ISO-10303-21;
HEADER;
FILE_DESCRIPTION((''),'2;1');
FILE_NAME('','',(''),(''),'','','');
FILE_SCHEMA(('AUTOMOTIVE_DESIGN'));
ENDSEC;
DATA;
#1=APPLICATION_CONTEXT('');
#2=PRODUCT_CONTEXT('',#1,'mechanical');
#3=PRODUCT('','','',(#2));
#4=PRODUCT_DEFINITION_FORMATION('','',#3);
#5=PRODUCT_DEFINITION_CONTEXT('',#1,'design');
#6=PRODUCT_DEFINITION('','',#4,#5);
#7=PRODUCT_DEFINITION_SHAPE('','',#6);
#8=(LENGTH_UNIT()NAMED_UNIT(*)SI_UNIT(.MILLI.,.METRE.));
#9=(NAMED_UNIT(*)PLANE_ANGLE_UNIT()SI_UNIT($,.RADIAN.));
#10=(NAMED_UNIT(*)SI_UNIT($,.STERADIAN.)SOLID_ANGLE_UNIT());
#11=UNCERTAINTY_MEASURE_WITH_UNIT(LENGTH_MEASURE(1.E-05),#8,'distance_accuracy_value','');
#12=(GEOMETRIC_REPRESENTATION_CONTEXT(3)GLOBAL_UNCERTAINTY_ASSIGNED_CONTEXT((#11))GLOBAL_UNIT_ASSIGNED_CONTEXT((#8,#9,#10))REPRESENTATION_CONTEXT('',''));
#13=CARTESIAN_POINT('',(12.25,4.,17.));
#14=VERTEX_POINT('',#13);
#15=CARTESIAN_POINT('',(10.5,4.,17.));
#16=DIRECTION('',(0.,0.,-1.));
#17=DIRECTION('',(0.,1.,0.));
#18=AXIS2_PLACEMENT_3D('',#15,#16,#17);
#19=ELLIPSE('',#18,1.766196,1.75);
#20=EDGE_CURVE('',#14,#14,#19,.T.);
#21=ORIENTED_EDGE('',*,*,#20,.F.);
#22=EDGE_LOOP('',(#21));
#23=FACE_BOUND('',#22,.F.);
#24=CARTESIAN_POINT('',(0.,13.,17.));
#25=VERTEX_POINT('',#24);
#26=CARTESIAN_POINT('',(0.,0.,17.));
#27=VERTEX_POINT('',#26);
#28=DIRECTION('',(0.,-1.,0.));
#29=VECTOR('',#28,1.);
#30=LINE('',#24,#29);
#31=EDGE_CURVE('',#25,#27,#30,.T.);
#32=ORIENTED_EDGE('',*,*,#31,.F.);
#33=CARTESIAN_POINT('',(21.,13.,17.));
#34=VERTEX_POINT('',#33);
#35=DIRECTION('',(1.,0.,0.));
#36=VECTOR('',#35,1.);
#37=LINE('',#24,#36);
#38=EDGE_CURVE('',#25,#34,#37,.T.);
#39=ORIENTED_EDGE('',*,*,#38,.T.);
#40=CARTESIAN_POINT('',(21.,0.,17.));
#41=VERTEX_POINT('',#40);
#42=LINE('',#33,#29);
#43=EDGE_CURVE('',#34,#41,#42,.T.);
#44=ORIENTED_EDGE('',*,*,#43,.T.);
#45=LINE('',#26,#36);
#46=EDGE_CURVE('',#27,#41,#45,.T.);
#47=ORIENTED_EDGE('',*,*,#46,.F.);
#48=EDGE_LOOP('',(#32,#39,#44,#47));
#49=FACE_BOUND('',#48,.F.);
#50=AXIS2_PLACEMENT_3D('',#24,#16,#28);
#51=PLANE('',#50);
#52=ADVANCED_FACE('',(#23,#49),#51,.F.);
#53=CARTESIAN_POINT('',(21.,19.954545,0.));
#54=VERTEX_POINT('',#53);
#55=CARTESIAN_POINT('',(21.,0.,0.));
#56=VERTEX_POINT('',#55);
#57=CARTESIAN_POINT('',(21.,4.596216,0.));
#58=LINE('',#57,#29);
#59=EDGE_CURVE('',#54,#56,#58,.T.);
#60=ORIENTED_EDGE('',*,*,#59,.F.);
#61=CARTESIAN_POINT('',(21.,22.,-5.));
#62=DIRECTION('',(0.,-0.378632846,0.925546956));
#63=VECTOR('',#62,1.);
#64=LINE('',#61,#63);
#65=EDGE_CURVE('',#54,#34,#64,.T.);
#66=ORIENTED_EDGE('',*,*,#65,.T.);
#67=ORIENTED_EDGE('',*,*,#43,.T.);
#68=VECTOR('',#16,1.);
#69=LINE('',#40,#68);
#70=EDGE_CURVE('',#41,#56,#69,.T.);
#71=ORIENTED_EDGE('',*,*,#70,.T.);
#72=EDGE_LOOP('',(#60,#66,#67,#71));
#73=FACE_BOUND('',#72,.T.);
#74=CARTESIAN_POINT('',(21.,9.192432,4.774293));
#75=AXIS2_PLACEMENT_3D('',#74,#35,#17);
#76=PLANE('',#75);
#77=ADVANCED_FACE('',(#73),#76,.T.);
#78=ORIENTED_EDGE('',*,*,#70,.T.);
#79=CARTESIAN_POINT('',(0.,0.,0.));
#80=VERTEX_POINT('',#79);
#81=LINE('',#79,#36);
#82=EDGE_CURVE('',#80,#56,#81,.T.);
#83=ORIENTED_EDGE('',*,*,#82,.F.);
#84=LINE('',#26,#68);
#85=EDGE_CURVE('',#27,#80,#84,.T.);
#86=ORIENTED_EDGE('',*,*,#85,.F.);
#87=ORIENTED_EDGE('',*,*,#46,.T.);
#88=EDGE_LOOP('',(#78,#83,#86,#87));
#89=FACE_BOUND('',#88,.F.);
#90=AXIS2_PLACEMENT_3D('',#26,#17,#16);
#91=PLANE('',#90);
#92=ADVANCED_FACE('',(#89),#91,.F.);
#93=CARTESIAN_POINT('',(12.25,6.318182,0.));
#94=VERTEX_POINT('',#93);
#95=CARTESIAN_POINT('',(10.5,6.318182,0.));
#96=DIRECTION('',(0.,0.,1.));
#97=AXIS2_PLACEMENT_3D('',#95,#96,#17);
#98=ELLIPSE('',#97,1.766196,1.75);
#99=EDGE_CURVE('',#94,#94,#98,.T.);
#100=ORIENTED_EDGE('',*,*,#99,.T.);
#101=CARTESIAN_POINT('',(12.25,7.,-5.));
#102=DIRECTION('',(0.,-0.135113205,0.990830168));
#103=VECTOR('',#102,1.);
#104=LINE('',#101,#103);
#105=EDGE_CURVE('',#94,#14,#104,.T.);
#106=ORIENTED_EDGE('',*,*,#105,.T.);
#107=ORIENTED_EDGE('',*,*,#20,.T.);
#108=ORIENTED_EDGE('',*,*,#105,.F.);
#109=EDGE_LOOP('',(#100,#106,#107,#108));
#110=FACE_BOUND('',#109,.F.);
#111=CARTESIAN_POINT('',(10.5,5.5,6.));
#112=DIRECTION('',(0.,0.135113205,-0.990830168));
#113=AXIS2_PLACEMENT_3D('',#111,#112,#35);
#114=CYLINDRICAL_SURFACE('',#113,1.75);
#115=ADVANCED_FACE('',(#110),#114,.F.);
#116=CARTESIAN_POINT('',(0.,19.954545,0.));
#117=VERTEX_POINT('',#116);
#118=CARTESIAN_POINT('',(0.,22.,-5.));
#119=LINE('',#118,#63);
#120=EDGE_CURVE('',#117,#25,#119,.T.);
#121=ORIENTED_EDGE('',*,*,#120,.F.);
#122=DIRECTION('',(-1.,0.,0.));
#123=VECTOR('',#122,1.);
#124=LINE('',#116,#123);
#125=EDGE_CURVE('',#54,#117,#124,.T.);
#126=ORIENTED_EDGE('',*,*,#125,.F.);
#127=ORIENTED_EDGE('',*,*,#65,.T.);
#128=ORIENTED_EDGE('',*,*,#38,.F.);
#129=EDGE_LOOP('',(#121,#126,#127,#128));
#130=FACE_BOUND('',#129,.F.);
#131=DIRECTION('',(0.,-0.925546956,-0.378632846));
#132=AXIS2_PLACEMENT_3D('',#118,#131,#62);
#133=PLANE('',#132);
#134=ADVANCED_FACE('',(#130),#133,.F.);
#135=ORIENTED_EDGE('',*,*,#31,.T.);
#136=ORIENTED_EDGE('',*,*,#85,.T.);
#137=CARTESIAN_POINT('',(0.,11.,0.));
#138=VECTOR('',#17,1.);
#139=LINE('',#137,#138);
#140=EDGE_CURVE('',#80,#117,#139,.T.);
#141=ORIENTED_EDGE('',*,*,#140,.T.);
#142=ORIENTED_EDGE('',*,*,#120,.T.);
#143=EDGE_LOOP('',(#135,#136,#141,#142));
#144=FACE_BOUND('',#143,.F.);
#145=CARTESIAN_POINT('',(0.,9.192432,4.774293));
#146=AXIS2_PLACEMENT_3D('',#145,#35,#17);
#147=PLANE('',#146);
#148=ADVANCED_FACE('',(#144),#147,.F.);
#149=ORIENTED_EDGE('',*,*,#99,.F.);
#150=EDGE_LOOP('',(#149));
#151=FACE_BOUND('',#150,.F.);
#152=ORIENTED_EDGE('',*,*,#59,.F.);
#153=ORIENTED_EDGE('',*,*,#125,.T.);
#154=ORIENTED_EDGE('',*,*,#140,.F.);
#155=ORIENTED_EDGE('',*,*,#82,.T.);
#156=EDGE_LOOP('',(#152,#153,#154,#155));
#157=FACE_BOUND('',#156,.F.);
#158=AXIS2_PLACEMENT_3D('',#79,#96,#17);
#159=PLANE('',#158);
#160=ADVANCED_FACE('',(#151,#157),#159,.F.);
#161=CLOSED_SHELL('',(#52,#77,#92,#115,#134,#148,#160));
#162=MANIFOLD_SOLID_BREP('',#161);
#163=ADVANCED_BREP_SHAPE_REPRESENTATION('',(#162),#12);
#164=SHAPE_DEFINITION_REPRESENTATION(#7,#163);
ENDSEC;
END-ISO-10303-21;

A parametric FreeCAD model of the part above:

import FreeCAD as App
import Part
import Sketcher

V = App.Vector
Q = App.Units.Quantity


def add_polygon(sketch, points):
    """Adds a closed chain of lines whose ends are joined by coincident constraints."""
    first, n = sketch.GeometryCount, len(points)
    for a, b in zip(points, points[1:] + points[:1]):
        sketch.addGeometry(Part.LineSegment(App.Vector(*a, 0), App.Vector(*b, 0)), False)
    for i in range(n):
        sketch.addConstraint(Sketcher.Constraint("Coincident", first + i, 2, first + (i + 1) % n, 1))

doc = App.newDocument("Part")
body = doc.addObject("PartDesign::Body", "Body")

# Sketch on YZ plane
sketch1 = body.newObject("Sketcher::SketchObject", "Sketch")
sketch1.AttachmentSupport = (doc.getObject("YZ_Plane"), [""])
sketch1.MapMode = "FlatFace"
add_polygon(sketch1, [(0, 22), (0, 0), (22, 0), (13, 22)])  # lines 0-3
sketch1.addConstraint([
    Sketcher.Constraint("Vertical", 0),
    Sketcher.Constraint("Horizontal", 1),
    Sketcher.Constraint("Horizontal", 3),
    Sketcher.Constraint("Coincident", 0, 2, -1, 1),
    Sketcher.Constraint("Equal", 1, 0),
    Sketcher.Constraint("DistanceX", 1, 1, 1, 2, Q("22 mm")),
    Sketcher.Constraint("DistanceX", 3, 2, 3, 1, Q("13 mm")),
])
pad1 = body.newObject("PartDesign::Pad", "Pad")
pad1.Profile = sketch1
pad1.Length = 21

# Sketch on an angled plane
sketch2 = body.newObject("Sketcher::SketchObject", "Sketch001")
sketch2.Placement = App.Placement(V(0, -1.372211, 10.06288), App.Rotation(V(1, 0, 0), V(0, -0.990830168, -0.135113205), V(0, 0.135113205, -0.990830168), "ZXY"))
sketch2.addGeometry(Part.Circle(V(10.5, -6.9, 0), V(0, 0, 1), 1.8), False)
sketch2.addConstraint([
    Sketcher.Constraint("Diameter", 0, Q("3.5 mm")),
    Sketcher.Constraint("DistanceX", -1, 1, 0, 3, Q("10.5 mm")),
    Sketcher.Constraint("DistanceY", 0, 3, -1, 1, Q("6.935811 mm")),
])
pocket1 = body.newObject("PartDesign::Pocket", "Pocket")
pocket1.Profile = sketch2
pocket1.Type = "ThroughAll"
pocket1.Midplane = True

# Sketch on YZ plane
sketch3 = body.newObject("Sketcher::SketchObject", "Sketch002")
sketch3.AttachmentSupport = (doc.getObject("YZ_Plane"), [""])
sketch3.MapMode = "FlatFace"
add_polygon(sketch3, [(0, 5), (0, 0), (22, 0), (22, 5)])  # lines 0-3
sketch3.addConstraint([
    Sketcher.Constraint("Vertical", 0),
    Sketcher.Constraint("Horizontal", 1),
    Sketcher.Constraint("Vertical", 2),
    Sketcher.Constraint("Horizontal", 3),
    Sketcher.Constraint("Coincident", 0, 2, -1, 1),
    Sketcher.Constraint("DistanceX", 1, 1, 1, 2, Q("22 mm")),
    Sketcher.Constraint("DistanceY", 0, 2, 0, 1, Q("5 mm")),
])
pocket2 = body.newObject("PartDesign::Pocket", "Pocket001")
pocket2.Profile = sketch3
pocket2.Type = "ThroughAll"
pocket2.Reversed = True
body2 = doc.addObject("PartDesign::Body", "Body001")
doc.recompute()

body.Placement = App.Placement(V(0, 0, -5), App.Rotation(V(0, 0, 1), 0))
boolean = body2.newObject("PartDesign::Boolean", "Boolean")
boolean.Type = "Fuse"
boolean.addObjects([body])

doc.recompute()
